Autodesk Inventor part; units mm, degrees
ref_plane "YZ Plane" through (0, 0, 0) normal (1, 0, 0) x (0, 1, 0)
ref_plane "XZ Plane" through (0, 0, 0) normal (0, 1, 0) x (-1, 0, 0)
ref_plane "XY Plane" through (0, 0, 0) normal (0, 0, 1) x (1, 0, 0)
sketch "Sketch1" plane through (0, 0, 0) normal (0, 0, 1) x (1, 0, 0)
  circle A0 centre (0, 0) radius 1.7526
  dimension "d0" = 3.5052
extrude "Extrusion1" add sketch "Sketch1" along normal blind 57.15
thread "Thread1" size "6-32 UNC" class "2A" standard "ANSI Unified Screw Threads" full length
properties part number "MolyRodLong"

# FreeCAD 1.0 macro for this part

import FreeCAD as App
import Part
import Sketcher
Q = App.Units.Quantity

doc = App.newDocument("Part")
body = doc.addObject("PartDesign::Body", "Body")

# Sketch on XY plane
sketch1 = doc.addObject("Sketcher::SketchObject", "Sketch")
body.addObject(sketch1)
sketch1.AttachmentSupport = (doc.XY_Plane, [""])
sketch1.MapMode = "FlatFace"
sketch1.addGeometry(Part.Circle(App.Vector(0, 0, 0), App.Vector(0, 0, 1), 1.7526), False)
sketch1.addConstraint([
    Sketcher.Constraint("Coincident", 0, 3, -1, 1),
    Sketcher.Constraint("Diameter", 0, Q("0.138 in")),
])
pad1 = doc.addObject("PartDesign::Pad", "Pad")
body.addObject(pad1)
pad1.Profile = sketch1
pad1.Length = Q("2.25 in")

doc.recompute()
